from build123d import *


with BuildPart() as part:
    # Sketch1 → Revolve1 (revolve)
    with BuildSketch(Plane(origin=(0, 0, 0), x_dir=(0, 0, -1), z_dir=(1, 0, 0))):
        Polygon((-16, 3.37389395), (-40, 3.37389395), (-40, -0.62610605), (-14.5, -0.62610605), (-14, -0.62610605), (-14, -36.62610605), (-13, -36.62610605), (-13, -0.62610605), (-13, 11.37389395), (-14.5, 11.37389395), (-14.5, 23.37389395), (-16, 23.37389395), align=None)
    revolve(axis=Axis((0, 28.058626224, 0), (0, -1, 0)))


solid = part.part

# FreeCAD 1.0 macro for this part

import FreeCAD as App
import Part
import Sketcher
from FreeCAD import Vector
Q = App.Units.Quantity

doc = App.newDocument("Part")
body = doc.addObject("PartDesign::Body", "Body")

# Sketch on YZ plane
sketch1 = body.newObject("Sketcher::SketchObject", "Sketch")
sketch1.AttachmentSupport = (doc.getObject("YZ_Plane"), [""])
sketch1.MapMode = "FlatFace"
sketch1.addGeometry(Part.LineSegment(Vector(3.4, 16, 0), Vector(3.4, 40, 0)), False)
sketch1.addGeometry(Part.LineSegment(Vector(3.4, 40, 0), Vector(-0.6, 40, 0)), False)
sketch1.addGeometry(Part.LineSegment(Vector(-0.6, 40, 0), Vector(-0.6, 14, 0)), False)
sketch1.addGeometry(Part.LineSegment(Vector(-0.6, 14, 0), Vector(-36.6, 14, 0)), False)
sketch1.addGeometry(Part.LineSegment(Vector(-36.6, 14, 0), Vector(-36.6, 13, 0)), False)
sketch1.addGeometry(Part.LineSegment(Vector(-36.6, 13, 0), Vector(11.4, 13, 0)), False)
sketch1.addGeometry(Part.LineSegment(Vector(11.4, 13, 0), Vector(11.4, 14.5, 0)), False)
sketch1.addGeometry(Part.LineSegment(Vector(11.4, 14.5, 0), Vector(23.4, 14.5, 0)), False)
sketch1.addGeometry(Part.LineSegment(Vector(23.4, 14.5, 0), Vector(23.4, 16, 0)), False)
sketch1.addGeometry(Part.LineSegment(Vector(23.4, 16, 0), Vector(3.4, 16, 0)), False)
sketch1.addConstraint(Sketcher.Constraint("Coincident", 0, 2, 1, 1))
sketch1.addConstraint(Sketcher.Constraint("Coincident", 1, 2, 2, 1))
sketch1.addConstraint(Sketcher.Constraint("Coincident", 2, 2, 3, 1))
sketch1.addConstraint(Sketcher.Constraint("Coincident", 3, 2, 4, 1))
sketch1.addConstraint(Sketcher.Constraint("Coincident", 4, 2, 5, 1))
sketch1.addConstraint(Sketcher.Constraint("Coincident", 5, 2, 6, 1))
sketch1.addConstraint(Sketcher.Constraint("Coincident", 6, 2, 7, 1))
sketch1.addConstraint(Sketcher.Constraint("Coincident", 7, 2, 8, 1))
sketch1.addConstraint(Sketcher.Constraint("Coincident", 8, 2, 9, 1))
sketch1.addConstraint(Sketcher.Constraint("Coincident", 9, 2, 0, 1))
sketch1.addConstraint(Sketcher.Constraint("Vertical", 0))
sketch1.addConstraint(Sketcher.Constraint("Horizontal", 1))
sketch1.addConstraint(Sketcher.Constraint("Vertical", 2))
sketch1.addConstraint(Sketcher.Constraint("Horizontal", 3))
sketch1.addConstraint(Sketcher.Constraint("Vertical", 4))
sketch1.addConstraint(Sketcher.Constraint("Horizontal", 5))
sketch1.addConstraint(Sketcher.Constraint("Vertical", 6))
sketch1.addConstraint(Sketcher.Constraint("Horizontal", 7))
sketch1.addConstraint(Sketcher.Constraint("Vertical", 8))
sketch1.addConstraint(Sketcher.Constraint("Horizontal", 9))
sketch1.addConstraint(Sketcher.Constraint("Equal", 6, 8))
sketch1.addConstraint(Sketcher.Constraint("DistanceX", 1, 2, 1, 1, Q("4 mm")))
sketch1.addConstraint(Sketcher.Constraint("DistanceX", 3, 2, 3, 1, Q("36 mm")))
sketch1.addConstraint(Sketcher.Constraint("DistanceX", 5, 1, 5, 2, Q("48 mm")))
sketch1.addConstraint(Sketcher.Constraint("DistanceX", 7, 1, 7, 2, Q("12 mm")))
sketch1.addConstraint(Sketcher.Constraint("DistanceY", 0, 1, 0, 2, Q("24 mm")))
sketch1.addConstraint(Sketcher.Constraint("DistanceY", 2, 2, 2, 1, Q("26 mm")))
sketch1.addConstraint(Sketcher.Constraint("DistanceY", 4, 2, 4, 1, Q("1 mm")))
sketch1.addConstraint(Sketcher.Constraint("DistanceY", -1, 1, 0, 2, Q("40 mm")))
sketch1.addConstraint(Sketcher.Constraint("DistanceX", -1, 1, 0, 2, Q("3.373894 mm")))
revolution = body.newObject("PartDesign::Revolution", "Revolution")
revolution.Profile = sketch1
revolution.ReferenceAxis = (sketch1, ["H_Axis"])
revolution.Angle = 360

doc.recompute()
